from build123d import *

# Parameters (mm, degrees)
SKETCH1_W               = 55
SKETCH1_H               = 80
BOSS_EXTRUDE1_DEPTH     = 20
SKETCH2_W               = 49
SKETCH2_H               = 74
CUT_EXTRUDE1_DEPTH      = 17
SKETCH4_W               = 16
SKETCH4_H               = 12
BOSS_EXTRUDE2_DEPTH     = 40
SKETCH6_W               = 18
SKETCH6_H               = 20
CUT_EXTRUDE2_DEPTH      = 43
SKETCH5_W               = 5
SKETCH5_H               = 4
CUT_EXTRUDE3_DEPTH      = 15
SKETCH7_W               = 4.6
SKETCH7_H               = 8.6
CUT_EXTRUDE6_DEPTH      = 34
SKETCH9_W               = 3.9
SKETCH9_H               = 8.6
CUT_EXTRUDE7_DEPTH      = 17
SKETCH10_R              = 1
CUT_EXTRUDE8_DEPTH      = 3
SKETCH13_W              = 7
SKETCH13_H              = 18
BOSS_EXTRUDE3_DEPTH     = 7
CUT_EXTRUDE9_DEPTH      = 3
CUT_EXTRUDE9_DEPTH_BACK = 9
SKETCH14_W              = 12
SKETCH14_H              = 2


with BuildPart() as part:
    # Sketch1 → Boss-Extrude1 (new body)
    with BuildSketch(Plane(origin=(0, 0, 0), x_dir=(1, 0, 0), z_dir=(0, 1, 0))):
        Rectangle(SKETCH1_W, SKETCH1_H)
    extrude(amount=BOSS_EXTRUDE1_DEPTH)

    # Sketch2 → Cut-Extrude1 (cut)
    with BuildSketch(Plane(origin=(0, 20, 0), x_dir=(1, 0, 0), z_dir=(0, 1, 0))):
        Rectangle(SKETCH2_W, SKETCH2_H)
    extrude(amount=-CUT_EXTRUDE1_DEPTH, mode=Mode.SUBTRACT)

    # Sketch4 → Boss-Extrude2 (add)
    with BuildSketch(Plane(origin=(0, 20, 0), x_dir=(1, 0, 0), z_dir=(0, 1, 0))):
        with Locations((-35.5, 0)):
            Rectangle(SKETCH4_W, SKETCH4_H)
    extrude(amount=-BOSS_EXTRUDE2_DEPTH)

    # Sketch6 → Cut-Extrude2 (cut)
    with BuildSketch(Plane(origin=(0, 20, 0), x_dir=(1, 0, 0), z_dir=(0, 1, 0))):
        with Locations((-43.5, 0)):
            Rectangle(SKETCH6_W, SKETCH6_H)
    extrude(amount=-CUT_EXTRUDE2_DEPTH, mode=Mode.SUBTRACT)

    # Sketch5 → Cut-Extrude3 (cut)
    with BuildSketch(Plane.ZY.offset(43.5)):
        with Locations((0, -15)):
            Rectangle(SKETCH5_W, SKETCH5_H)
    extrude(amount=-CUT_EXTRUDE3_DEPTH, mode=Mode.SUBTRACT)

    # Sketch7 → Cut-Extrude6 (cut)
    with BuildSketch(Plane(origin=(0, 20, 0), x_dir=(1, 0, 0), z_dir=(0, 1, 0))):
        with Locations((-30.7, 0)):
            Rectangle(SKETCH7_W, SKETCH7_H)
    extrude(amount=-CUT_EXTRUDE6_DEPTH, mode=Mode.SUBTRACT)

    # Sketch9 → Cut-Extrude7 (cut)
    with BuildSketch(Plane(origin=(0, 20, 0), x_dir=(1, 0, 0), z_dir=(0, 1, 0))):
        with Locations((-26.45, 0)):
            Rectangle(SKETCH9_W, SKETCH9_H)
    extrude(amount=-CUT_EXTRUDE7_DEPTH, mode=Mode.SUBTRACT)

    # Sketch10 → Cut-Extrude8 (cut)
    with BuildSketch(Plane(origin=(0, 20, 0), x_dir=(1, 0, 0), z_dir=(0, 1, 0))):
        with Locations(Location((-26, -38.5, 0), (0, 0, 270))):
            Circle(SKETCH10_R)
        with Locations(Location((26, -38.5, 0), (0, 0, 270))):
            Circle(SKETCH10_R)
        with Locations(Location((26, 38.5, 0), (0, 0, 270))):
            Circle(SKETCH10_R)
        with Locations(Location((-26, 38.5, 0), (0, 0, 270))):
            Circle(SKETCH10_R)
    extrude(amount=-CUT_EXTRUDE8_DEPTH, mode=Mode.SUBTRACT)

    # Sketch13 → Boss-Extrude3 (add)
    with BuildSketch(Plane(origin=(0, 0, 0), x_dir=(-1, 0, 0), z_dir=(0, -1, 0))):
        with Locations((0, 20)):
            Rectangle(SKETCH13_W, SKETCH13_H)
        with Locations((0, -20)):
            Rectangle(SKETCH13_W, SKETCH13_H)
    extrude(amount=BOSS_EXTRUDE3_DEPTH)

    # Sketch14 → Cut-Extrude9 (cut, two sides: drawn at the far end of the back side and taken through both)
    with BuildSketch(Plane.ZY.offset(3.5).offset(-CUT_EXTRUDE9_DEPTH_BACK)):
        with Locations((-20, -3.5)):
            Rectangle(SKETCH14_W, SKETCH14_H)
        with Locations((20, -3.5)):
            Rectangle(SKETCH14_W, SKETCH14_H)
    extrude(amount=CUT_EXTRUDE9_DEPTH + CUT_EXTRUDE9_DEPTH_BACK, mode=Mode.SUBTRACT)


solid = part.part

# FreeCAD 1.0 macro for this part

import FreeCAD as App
import Part
import Sketcher
from FreeCAD import Vector
Q = App.Units.Quantity

doc = App.newDocument("Part")
body = doc.addObject("PartDesign::Body", "Body")

sketch1 = doc.addObject("Sketcher::SketchObject", "Sketch")
body.addObject(sketch1)
sketch1.AttachmentSupport = (doc.XZ_Plane, [""])
sketch1.MapMode = "FlatFace"
sketch1.addGeometry(Part.LineSegment(Vector(-28, -40, 0), Vector(-28, 40, 0)), False)
sketch1.addGeometry(Part.LineSegment(Vector(-28, 40, 0), Vector(28, 40, 0)), False)
sketch1.addGeometry(Part.LineSegment(Vector(28, 40, 0), Vector(28, -40, 0)), False)
sketch1.addGeometry(Part.LineSegment(Vector(28, -40, 0), Vector(-28, -40, 0)), False)
sketch1.addConstraint(Sketcher.Constraint("Coincident", 0, 2, 1, 1))
sketch1.addConstraint(Sketcher.Constraint("Coincident", 1, 2, 2, 1))
sketch1.addConstraint(Sketcher.Constraint("Coincident", 2, 2, 3, 1))
sketch1.addConstraint(Sketcher.Constraint("Coincident", 3, 2, 0, 1))
sketch1.addConstraint(Sketcher.Constraint("Vertical", 0))
sketch1.addConstraint(Sketcher.Constraint("Horizontal", 1))
sketch1.addConstraint(Sketcher.Constraint("Vertical", 2))
sketch1.addConstraint(Sketcher.Constraint("Horizontal", 3))
sketch1.addConstraint(Sketcher.Constraint("Symmetric", 0, 2, 2, 2, -1, 1))
sketch1.addConstraint(Sketcher.Constraint("DistanceX", 1, 1, 1, 2, Q("55 mm")))
sketch1.addConstraint(Sketcher.Constraint("DistanceY", 0, 1, 0, 2, Q("80 mm")))
pad1 = doc.addObject("PartDesign::Pad", "Pad")
body.addObject(pad1)
pad1.Profile = sketch1
pad1.Length = 20
pad1.Reversed = True

sketch2 = doc.addObject("Sketcher::SketchObject", "Sketch001")
body.addObject(sketch2)
sketch2.AttachmentSupport = (doc.XZ_Plane, [""])
sketch2.MapMode = "FlatFace"
sketch2.AttachmentOffset = App.Placement(Vector(0, 0, -20), App.Rotation())
sketch2.addGeometry(Part.LineSegment(Vector(-24, -37, 0), Vector(-24, 37, 0)), False)
sketch2.addGeometry(Part.LineSegment(Vector(-24, 37, 0), Vector(24, 37, 0)), False)
sketch2.addGeometry(Part.LineSegment(Vector(24, 37, 0), Vector(24, -37, 0)), False)
sketch2.addGeometry(Part.LineSegment(Vector(24, -37, 0), Vector(-24, -37, 0)), False)
sketch2.addConstraint(Sketcher.Constraint("Coincident", 0, 2, 1, 1))
sketch2.addConstraint(Sketcher.Constraint("Coincident", 1, 2, 2, 1))
sketch2.addConstraint(Sketcher.Constraint("Coincident", 2, 2, 3, 1))
sketch2.addConstraint(Sketcher.Constraint("Coincident", 3, 2, 0, 1))
sketch2.addConstraint(Sketcher.Constraint("Vertical", 0))
sketch2.addConstraint(Sketcher.Constraint("Horizontal", 1))
sketch2.addConstraint(Sketcher.Constraint("Vertical", 2))
sketch2.addConstraint(Sketcher.Constraint("Horizontal", 3))
sketch2.addConstraint(Sketcher.Constraint("Symmetric", 0, 2, 2, 2, -1, 1))
sketch2.addConstraint(Sketcher.Constraint("DistanceX", 1, 1, 1, 2, Q("49 mm")))
sketch2.addConstraint(Sketcher.Constraint("DistanceY", 0, 1, 0, 2, Q("74 mm")))
pocket1 = doc.addObject("PartDesign::Pocket", "Pocket")
body.addObject(pocket1)
pocket1.Profile = sketch2
pocket1.Length = 17
pocket1.Reversed = True

sketch3 = doc.addObject("Sketcher::SketchObject", "Sketch002")
body.addObject(sketch3)
sketch3.AttachmentSupport = (doc.XZ_Plane, [""])
sketch3.MapMode = "FlatFace"
sketch3.AttachmentOffset = App.Placement(Vector(0, 0, -20), App.Rotation())
sketch3.addGeometry(Part.LineSegment(Vector(-44, -6, 0), Vector(-44, 6, 0)), False)
sketch3.addGeometry(Part.LineSegment(Vector(-44, 6, 0), Vector(-28, 6, 0)), False)
sketch3.addGeometry(Part.LineSegment(Vector(-28, 6, 0), Vector(-28, -6, 0)), False)
sketch3.addGeometry(Part.LineSegment(Vector(-28, -6, 0), Vector(-44, -6, 0)), False)
sketch3.addConstraint(Sketcher.Constraint("Coincident", 0, 2, 1, 1))
sketch3.addConstraint(Sketcher.Constraint("Coincident", 1, 2, 2, 1))
sketch3.addConstraint(Sketcher.Constraint("Coincident", 2, 2, 3, 1))
sketch3.addConstraint(Sketcher.Constraint("Coincident", 3, 2, 0, 1))
sketch3.addConstraint(Sketcher.Constraint("Vertical", 0))
sketch3.addConstraint(Sketcher.Constraint("Horizontal", 1))
sketch3.addConstraint(Sketcher.Constraint("Vertical", 2))
sketch3.addConstraint(Sketcher.Constraint("Horizontal", 3))
sketch3.addConstraint(Sketcher.Constraint("DistanceX", 1, 1, 1, 2, Q("16 mm")))
sketch3.addConstraint(Sketcher.Constraint("DistanceY", 0, 1, 0, 2, Q("12 mm")))
sketch3.addConstraint(Sketcher.Constraint("DistanceY", -1, 1, 0, 2, Q("6 mm")))
sketch3.addConstraint(Sketcher.Constraint("DistanceX", 0, 2, -1, 1, Q("43.5 mm")))
pad2 = doc.addObject("PartDesign::Pad", "Pad001")
body.addObject(pad2)
pad2.Profile = sketch3
pad2.Length = 40

sketch4 = doc.addObject("Sketcher::SketchObject", "Sketch003")
body.addObject(sketch4)
sketch4.AttachmentSupport = (doc.XZ_Plane, [""])
sketch4.MapMode = "FlatFace"
sketch4.AttachmentOffset = App.Placement(Vector(0, 0, -20), App.Rotation())
sketch4.addGeometry(Part.LineSegment(Vector(-52, -10, 0), Vector(-52, 10, 0)), False)
sketch4.addGeometry(Part.LineSegment(Vector(-52, 10, 0), Vector(-34, 10, 0)), False)
sketch4.addGeometry(Part.LineSegment(Vector(-34, 10, 0), Vector(-34, -10, 0)), False)
sketch4.addGeometry(Part.LineSegment(Vector(-34, -10, 0), Vector(-52, -10, 0)), False)
sketch4.addConstraint(Sketcher.Constraint("Coincident", 0, 2, 1, 1))
sketch4.addConstraint(Sketcher.Constraint("Coincident", 1, 2, 2, 1))
sketch4.addConstraint(Sketcher.Constraint("Coincident", 2, 2, 3, 1))
sketch4.addConstraint(Sketcher.Constraint("Coincident", 3, 2, 0, 1))
sketch4.addConstraint(Sketcher.Constraint("Vertical", 0))
sketch4.addConstraint(Sketcher.Constraint("Horizontal", 1))
sketch4.addConstraint(Sketcher.Constraint("Vertical", 2))
sketch4.addConstraint(Sketcher.Constraint("Horizontal", 3))
sketch4.addConstraint(Sketcher.Constraint("DistanceX", 1, 1, 1, 2, Q("18 mm")))
sketch4.addConstraint(Sketcher.Constraint("DistanceY", 0, 1, 0, 2, Q("20 mm")))
sketch4.addConstraint(Sketcher.Constraint("DistanceY", -1, 1, 0, 2, Q("10 mm")))
sketch4.addConstraint(Sketcher.Constraint("DistanceX", 0, 2, -1, 1, Q("52.5 mm")))
pocket2 = doc.addObject("PartDesign::Pocket", "Pocket001")
body.addObject(pocket2)
pocket2.Profile = sketch4
pocket2.Length = 43
pocket2.Reversed = True

sketch5 = doc.addObject("Sketcher::SketchObject", "Sketch004")
body.addObject(sketch5)
sketch5.AttachmentSupport = (doc.YZ_Plane, [""])
sketch5.MapMode = "FlatFace"
sketch5.AttachmentOffset = App.Placement(Vector(0, 0, -43.5), App.Rotation())
sketch5.addGeometry(Part.LineSegment(Vector(-13, -2.5, 0), Vector(-17, -2.5, 0)), False)
sketch5.addGeometry(Part.LineSegment(Vector(-17, -2.5, 0), Vector(-17, 2.5, 0)), False)
sketch5.addGeometry(Part.LineSegment(Vector(-17, 2.5, 0), Vector(-13, 2.5, 0)), False)
sketch5.addGeometry(Part.LineSegment(Vector(-13, 2.5, 0), Vector(-13, -2.5, 0)), False)
sketch5.addConstraint(Sketcher.Constraint("Coincident", 0, 2, 1, 1))
sketch5.addConstraint(Sketcher.Constraint("Coincident", 1, 2, 2, 1))
sketch5.addConstraint(Sketcher.Constraint("Coincident", 2, 2, 3, 1))
sketch5.addConstraint(Sketcher.Constraint("Coincident", 3, 2, 0, 1))
sketch5.addConstraint(Sketcher.Constraint("Horizontal", 0))
sketch5.addConstraint(Sketcher.Constraint("Vertical", 1))
sketch5.addConstraint(Sketcher.Constraint("Horizontal", 2))
sketch5.addConstraint(Sketcher.Constraint("Vertical", 3))
sketch5.addConstraint(Sketcher.Constraint("DistanceX", 0, 2, 0, 1, Q("4 mm")))
sketch5.addConstraint(Sketcher.Constraint("DistanceY", 1, 1, 1, 2, Q("5 mm")))
sketch5.addConstraint(Sketcher.Constraint("DistanceX", 0, 2, -1, 1, Q("17 mm")))
sketch5.addConstraint(Sketcher.Constraint("DistanceY", 0, 2, -1, 1, Q("2.5 mm")))
pocket3 = doc.addObject("PartDesign::Pocket", "Pocket002")
body.addObject(pocket3)
pocket3.Profile = sketch5
pocket3.Length = 15
pocket3.Reversed = True

sketch6 = doc.addObject("Sketcher::SketchObject", "Sketch005")
body.addObject(sketch6)
sketch6.AttachmentSupport = (doc.XZ_Plane, [""])
sketch6.MapMode = "FlatFace"
sketch6.AttachmentOffset = App.Placement(Vector(0, 0, -20), App.Rotation())
sketch6.addGeometry(Part.LineSegment(Vector(-33, -4.3, 0), Vector(-33, 4.3, 0)), False)
sketch6.addGeometry(Part.LineSegment(Vector(-33, 4.3, 0), Vector(-28.4, 4.3, 0)), False)
sketch6.addGeometry(Part.LineSegment(Vector(-28.4, 4.3, 0), Vector(-28.4, -4.3, 0)), False)
sketch6.addGeometry(Part.LineSegment(Vector(-28.4, -4.3, 0), Vector(-33, -4.3, 0)), False)
sketch6.addConstraint(Sketcher.Constraint("Coincident", 0, 2, 1, 1))
sketch6.addConstraint(Sketcher.Constraint("Coincident", 1, 2, 2, 1))
sketch6.addConstraint(Sketcher.Constraint("Coincident", 2, 2, 3, 1))
sketch6.addConstraint(Sketcher.Constraint("Coincident", 3, 2, 0, 1))
sketch6.addConstraint(Sketcher.Constraint("Vertical", 0))
sketch6.addConstraint(Sketcher.Constraint("Horizontal", 1))
sketch6.addConstraint(Sketcher.Constraint("Vertical", 2))
sketch6.addConstraint(Sketcher.Constraint("Horizontal", 3))
sketch6.addConstraint(Sketcher.Constraint("DistanceX", 1, 1, 1, 2, Q("4.6 mm")))
sketch6.addConstraint(Sketcher.Constraint("DistanceY", 0, 1, 0, 2, Q("8.6 mm")))
sketch6.addConstraint(Sketcher.Constraint("DistanceX", 0, 2, -1, 1, Q("33 mm")))
sketch6.addConstraint(Sketcher.Constraint("DistanceY", -1, 1, 0, 2, Q("4.3 mm")))
pocket4 = doc.addObject("PartDesign::Pocket", "Pocket003")
body.addObject(pocket4)
pocket4.Profile = sketch6
pocket4.Length = 34
pocket4.Reversed = True

sketch7 = doc.addObject("Sketcher::SketchObject", "Sketch006")
body.addObject(sketch7)
sketch7.AttachmentSupport = (doc.XZ_Plane, [""])
sketch7.MapMode = "FlatFace"
sketch7.AttachmentOffset = App.Placement(Vector(0, 0, -20), App.Rotation())
sketch7.addGeometry(Part.LineSegment(Vector(-28.4, -4.3, 0), Vector(-28.4, 4.3, 0)), False)
sketch7.addGeometry(Part.LineSegment(Vector(-28.4, 4.3, 0), Vector(-24.5, 4.3, 0)), False)
sketch7.addGeometry(Part.LineSegment(Vector(-24.5, 4.3, 0), Vector(-24.5, -4.3, 0)), False)
sketch7.addGeometry(Part.LineSegment(Vector(-24.5, -4.3, 0), Vector(-28.4, -4.3, 0)), False)
sketch7.addConstraint(Sketcher.Constraint("Coincident", 0, 2, 1, 1))
sketch7.addConstraint(Sketcher.Constraint("Coincident", 1, 2, 2, 1))
sketch7.addConstraint(Sketcher.Constraint("Coincident", 2, 2, 3, 1))
sketch7.addConstraint(Sketcher.Constraint("Coincident", 3, 2, 0, 1))
sketch7.addConstraint(Sketcher.Constraint("Vertical", 0))
sketch7.addConstraint(Sketcher.Constraint("Horizontal", 1))
sketch7.addConstraint(Sketcher.Constraint("Vertical", 2))
sketch7.addConstraint(Sketcher.Constraint("Horizontal", 3))
sketch7.addConstraint(Sketcher.Constraint("DistanceX", 1, 1, 1, 2, Q("3.9 mm")))
sketch7.addConstraint(Sketcher.Constraint("DistanceY", 0, 1, 0, 2, Q("8.6 mm")))
sketch7.addConstraint(Sketcher.Constraint("DistanceX", 0, 2, -1, 1, Q("28.4 mm")))
sketch7.addConstraint(Sketcher.Constraint("DistanceY", -1, 1, 0, 2, Q("4.3 mm")))
pocket5 = doc.addObject("PartDesign::Pocket", "Pocket004")
body.addObject(pocket5)
pocket5.Profile = sketch7
pocket5.Length = 17
pocket5.Reversed = True

sketch8 = doc.addObject("Sketcher::SketchObject", "Sketch007")
body.addObject(sketch8)
sketch8.AttachmentSupport = (doc.XZ_Plane, [""])
sketch8.MapMode = "FlatFace"
sketch8.AttachmentOffset = App.Placement(Vector(0, 0, -20), App.Rotation())
sketch8.addGeometry(Part.Circle(Vector(-26, 38.5, 0), Vector(0, 0, 1), 1), False)
sketch8.addGeometry(Part.Circle(Vector(26, 38.5, 0), Vector(0, 0, 1), 1), False)
sketch8.addGeometry(Part.Circle(Vector(26, -38.5, 0), Vector(0, 0, 1), 1), False)
sketch8.addGeometry(Part.Circle(Vector(-26, -38.5, 0), Vector(0, 0, 1), 1), False)
sketch8.addConstraint(Sketcher.Constraint("Equal", 0, 1))
sketch8.addConstraint(Sketcher.Constraint("Equal", 1, 2))
sketch8.addConstraint(Sketcher.Constraint("Equal", 2, 3))
sketch8.addConstraint(Sketcher.Constraint("Symmetric", 0, 3, 2, 3, -1, 1))
sketch8.addConstraint(Sketcher.Constraint("Symmetric", 1, 3, 3, 3, -1, 1))
sketch8.addConstraint(Sketcher.Constraint("Symmetric", 0, 3, 1, 3, -2))
sketch8.addConstraint(Sketcher.Constraint("Diameter", 0, Q("2 mm")))
sketch8.addConstraint(Sketcher.Constraint("DistanceX", 0, 3, -1, 1, Q("26 mm")))
sketch8.addConstraint(Sketcher.Constraint("DistanceY", 2, 3, 1, 3, Q("77 mm")))
pocket6 = doc.addObject("PartDesign::Pocket", "Pocket005")
body.addObject(pocket6)
pocket6.Profile = sketch8
pocket6.Length = 3
pocket6.Reversed = True

sketch9 = doc.addObject("Sketcher::SketchObject", "Sketch008")
body.addObject(sketch9)
sketch9.AttachmentSupport = (doc.XZ_Plane, [""])
sketch9.MapMode = "FlatFace"
sketch9.addGeometry(Part.LineSegment(Vector(3.5, -29, 0), Vector(3.5, -11, 0)), False)
sketch9.addGeometry(Part.LineSegment(Vector(3.5, -11, 0), Vector(-3.5, -11, 0)), False)
sketch9.addGeometry(Part.LineSegment(Vector(-3.5, -11, 0), Vector(-3.5, -29, 0)), False)
sketch9.addGeometry(Part.LineSegment(Vector(-3.5, -29, 0), Vector(3.5, -29, 0)), False)
sketch9.addGeometry(Part.LineSegment(Vector(3.5, 11, 0), Vector(3.5, 29, 0)), False)
sketch9.addGeometry(Part.LineSegment(Vector(3.5, 29, 0), Vector(-3.5, 29, 0)), False)
sketch9.addGeometry(Part.LineSegment(Vector(-3.5, 29, 0), Vector(-3.5, 11, 0)), False)
sketch9.addGeometry(Part.LineSegment(Vector(-3.5, 11, 0), Vector(3.5, 11, 0)), False)
sketch9.addConstraint(Sketcher.Constraint("Coincident", 0, 2, 1, 1))
sketch9.addConstraint(Sketcher.Constraint("Coincident", 1, 2, 2, 1))
sketch9.addConstraint(Sketcher.Constraint("Coincident", 2, 2, 3, 1))
sketch9.addConstraint(Sketcher.Constraint("Coincident", 3, 2, 0, 1))
sketch9.addConstraint(Sketcher.Constraint("Coincident", 4, 2, 5, 1))
sketch9.addConstraint(Sketcher.Constraint("Coincident", 5, 2, 6, 1))
sketch9.addConstraint(Sketcher.Constraint("Coincident", 6, 2, 7, 1))
sketch9.addConstraint(Sketcher.Constraint("Coincident", 7, 2, 4, 1))
sketch9.addConstraint(Sketcher.Constraint("Vertical", 0))
sketch9.addConstraint(Sketcher.Constraint("Horizontal", 1))
sketch9.addConstraint(Sketcher.Constraint("Vertical", 2))
sketch9.addConstraint(Sketcher.Constraint("Horizontal", 3))
sketch9.addConstraint(Sketcher.Constraint("Vertical", 4))
sketch9.addConstraint(Sketcher.Constraint("Horizontal", 5))
sketch9.addConstraint(Sketcher.Constraint("Vertical", 6))
sketch9.addConstraint(Sketcher.Constraint("Horizontal", 7))
sketch9.addConstraint(Sketcher.Constraint("Symmetric", 2, 2, 4, 2, -1, 1))
sketch9.addConstraint(Sketcher.Constraint("Symmetric", 0, 2, 6, 2, -1, 1))
sketch9.addConstraint(Sketcher.Constraint("Vertical", 3, 2, 4, 2))
sketch9.addConstraint(Sketcher.Constraint("DistanceX", 1, 2, 1, 1, Q("7 mm")))
sketch9.addConstraint(Sketcher.Constraint("DistanceY", 0, 1, 0, 2, Q("18 mm")))
sketch9.addConstraint(Sketcher.Constraint("DistanceY", 0, 2, -1, 1, Q("11 mm")))
pad3 = doc.addObject("PartDesign::Pad", "Pad002")
body.addObject(pad3)
pad3.Profile = sketch9
pad3.Length = 7

sketch10 = doc.addObject("Sketcher::SketchObject", "Sketch009")
body.addObject(sketch10)
sketch10.AttachmentSupport = (doc.YZ_Plane, [""])
sketch10.MapMode = "FlatFace"
sketch10.AttachmentOffset = App.Placement(Vector(0, 0, -3.5), App.Rotation())
sketch10.addGeometry(Part.LineSegment(Vector(-2.5, -26, 0), Vector(-4.5, -26, 0)), False)
sketch10.addGeometry(Part.LineSegment(Vector(-4.5, -26, 0), Vector(-4.5, -14, 0)), False)
sketch10.addGeometry(Part.LineSegment(Vector(-4.5, -14, 0), Vector(-2.5, -14, 0)), False)
sketch10.addGeometry(Part.LineSegment(Vector(-2.5, -14, 0), Vector(-2.5, -26, 0)), False)
sketch10.addGeometry(Part.LineSegment(Vector(-2.5, 14, 0), Vector(-4.5, 14, 0)), False)
sketch10.addGeometry(Part.LineSegment(Vector(-4.5, 14, 0), Vector(-4.5, 26, 0)), False)
sketch10.addGeometry(Part.LineSegment(Vector(-4.5, 26, 0), Vector(-2.5, 26, 0)), False)
sketch10.addGeometry(Part.LineSegment(Vector(-2.5, 26, 0), Vector(-2.5, 14, 0)), False)
sketch10.addConstraint(Sketcher.Constraint("Coincident", 0, 2, 1, 1))
sketch10.addConstraint(Sketcher.Constraint("Coincident", 1, 2, 2, 1))
sketch10.addConstraint(Sketcher.Constraint("Coincident", 2, 2, 3, 1))
sketch10.addConstraint(Sketcher.Constraint("Coincident", 3, 2, 0, 1))
sketch10.addConstraint(Sketcher.Constraint("Coincident", 4, 2, 5, 1))
sketch10.addConstraint(Sketcher.Constraint("Coincident", 5, 2, 6, 1))
sketch10.addConstraint(Sketcher.Constraint("Coincident", 6, 2, 7, 1))
sketch10.addConstraint(Sketcher.Constraint("Coincident", 7, 2, 4, 1))
sketch10.addConstraint(Sketcher.Constraint("Horizontal", 0))
sketch10.addConstraint(Sketcher.Constraint("Vertical", 1))
sketch10.addConstraint(Sketcher.Constraint("Horizontal", 2))
sketch10.addConstraint(Sketcher.Constraint("Vertical", 3))
sketch10.addConstraint(Sketcher.Constraint("Horizontal", 4))
sketch10.addConstraint(Sketcher.Constraint("Vertical", 5))
sketch10.addConstraint(Sketcher.Constraint("Horizontal", 6))
sketch10.addConstraint(Sketcher.Constraint("Vertical", 7))
sketch10.addConstraint(Sketcher.Constraint("Symmetric", 1, 2, 4, 2, -1))
sketch10.addConstraint(Sketcher.Constraint("Symmetric", 3, 2, 6, 2, -1))
sketch10.addConstraint(Sketcher.Constraint("DistanceX", 0, 2, 0, 1, Q("2 mm")))
sketch10.addConstraint(Sketcher.Constraint("DistanceY", 1, 1, 1, 2, Q("12 mm")))
sketch10.addConstraint(Sketcher.Constraint("DistanceY", 0, 2, -1, 1, Q("26 mm")))
sketch10.addConstraint(Sketcher.Constraint("DistanceX", 0, 2, -1, 1, Q("4.5 mm")))
pocket7 = doc.addObject("PartDesign::Pocket", "Pocket006")
body.addObject(pocket7)
pocket7.Profile = sketch10
pocket7.Type = "ThroughAll"
pocket7.Midplane = True

doc.recompute()
